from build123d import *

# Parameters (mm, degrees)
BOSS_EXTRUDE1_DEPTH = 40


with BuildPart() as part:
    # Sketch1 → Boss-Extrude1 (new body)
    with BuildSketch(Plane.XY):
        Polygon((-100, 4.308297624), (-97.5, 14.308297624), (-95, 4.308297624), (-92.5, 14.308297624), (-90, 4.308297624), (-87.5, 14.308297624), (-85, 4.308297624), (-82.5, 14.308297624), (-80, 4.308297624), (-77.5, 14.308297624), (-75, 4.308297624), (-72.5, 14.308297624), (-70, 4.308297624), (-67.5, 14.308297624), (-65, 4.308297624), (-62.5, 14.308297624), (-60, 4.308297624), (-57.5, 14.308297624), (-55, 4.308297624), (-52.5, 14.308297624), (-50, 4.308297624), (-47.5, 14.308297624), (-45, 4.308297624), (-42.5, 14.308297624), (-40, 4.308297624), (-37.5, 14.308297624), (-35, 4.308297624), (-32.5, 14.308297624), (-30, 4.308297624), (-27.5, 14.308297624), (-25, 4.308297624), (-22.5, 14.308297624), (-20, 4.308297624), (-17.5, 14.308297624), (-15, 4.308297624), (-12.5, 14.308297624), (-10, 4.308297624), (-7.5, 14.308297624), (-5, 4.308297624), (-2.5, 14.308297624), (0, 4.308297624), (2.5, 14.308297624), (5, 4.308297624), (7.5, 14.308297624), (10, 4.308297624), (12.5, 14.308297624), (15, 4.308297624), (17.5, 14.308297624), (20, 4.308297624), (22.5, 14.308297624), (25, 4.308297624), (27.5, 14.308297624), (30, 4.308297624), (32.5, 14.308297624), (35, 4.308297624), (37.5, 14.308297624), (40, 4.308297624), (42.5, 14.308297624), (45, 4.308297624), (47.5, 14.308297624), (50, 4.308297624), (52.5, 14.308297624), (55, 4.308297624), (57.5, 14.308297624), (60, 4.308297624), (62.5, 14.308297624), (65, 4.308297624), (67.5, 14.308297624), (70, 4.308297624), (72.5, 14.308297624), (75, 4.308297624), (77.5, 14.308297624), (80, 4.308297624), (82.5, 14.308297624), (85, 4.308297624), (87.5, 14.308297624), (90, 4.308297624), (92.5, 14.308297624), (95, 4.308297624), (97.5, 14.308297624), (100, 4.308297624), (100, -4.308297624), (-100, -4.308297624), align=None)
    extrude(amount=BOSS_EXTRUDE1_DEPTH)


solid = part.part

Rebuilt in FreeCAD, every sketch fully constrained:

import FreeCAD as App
import Part
import Sketcher
from FreeCAD import Vector


def add_polygon(sketch, points):
    """Adds a closed chain of lines whose ends are joined by coincident constraints."""
    first, n = sketch.GeometryCount, len(points)
    for a, b in zip(points, points[1:] + points[:1]):
        sketch.addGeometry(Part.LineSegment(App.Vector(*a, 0), App.Vector(*b, 0)), False)
    for i in range(n):
        sketch.addConstraint(Sketcher.Constraint("Coincident", first + i, 2, first + (i + 1) % n, 1))

doc = App.newDocument("Part")
body = doc.addObject("PartDesign::Body", "Body")

# Sketch on XY plane
sketch1 = body.newObject("Sketcher::SketchObject", "Sketch")
sketch1.AttachmentSupport = (doc.getObject("XY_Plane"), [""])
sketch1.MapMode = "FlatFace"
add_polygon(sketch1, [(-98, 14), (-100, 4), (-100, -4), (100, -4), (100, 4), (98, 14), (95, 4), (92, 14), (90, 4), (88, 14), (85, 4), (82, 14), (80, 4), (78, 14), (75, 4), (72, 14), (70, 4), (68, 14), (65, 4), (62, 14), (60, 4), (58, 14), (55, 4), (52, 14), (50, 4), (48, 14), (45, 4), (42, 14), (40, 4), (38, 14), (35, 4), (32, 14), (30, 4), (28, 14), (25, 4), (22, 14), (20, 4), (18, 14), (15, 4), (12, 14), (10, 4), (8, 14), (5, 4), (2, 14), (0, 4), (-2, 14), (-5, 4), (-8, 14), (-10, 4), (-12, 14), (-15, 4), (-18, 14), (-20, 4), (-22, 14), (-25, 4), (-28, 14), (-30, 4), (-32, 14), (-35, 4), (-38, 14), (-40, 4), (-42, 14), (-45, 4), (-48, 14), (-50, 4), (-52, 14), (-55, 4), (-58, 14), (-60, 4), (-62, 14), (-65, 4), (-68, 14), (-70, 4), (-72, 14), (-75, 4), (-78, 14), (-80, 4), (-82, 14), (-85, 4), (-88, 14), (-90, 4), (-92, 14), (-95, 4)])  # lines 0-82
sketch1.addConstraint([
    Sketcher.Constraint("Vertical", 1),
    Sketcher.Constraint("Horizontal", 2),
    Sketcher.Constraint("Vertical", 3),
    Sketcher.Constraint("Symmetric", 0, 2, 2, 2, -1, 1),
    Sketcher.Constraint("Symmetric", 42, 2, 44, 2, -2),
    Sketcher.Constraint("Symmetric", 41, 2, 45, 2, -2),
    Sketcher.Constraint("Symmetric", 40, 2, 46, 2, -2),
    Sketcher.Constraint("Symmetric", 39, 2, 47, 2, -2),
    Sketcher.Constraint("Symmetric", 38, 2, 48, 2, -2),
    Sketcher.Constraint("Symmetric", 37, 2, 49, 2, -2),
    Sketcher.Constraint("Symmetric", 36, 2, 50, 2, -2),
    Sketcher.Constraint("Symmetric", 35, 2, 51, 2, -2),
    Sketcher.Constraint("Symmetric", 34, 2, 52, 2, -2),
    Sketcher.Constraint("Symmetric", 33, 2, 53, 2, -2),
    Sketcher.Constraint("Symmetric", 32, 2, 54, 2, -2),
    Sketcher.Constraint("Symmetric", 31, 2, 55, 2, -2),
    Sketcher.Constraint("Symmetric", 30, 2, 56, 2, -2),
    Sketcher.Constraint("Symmetric", 29, 2, 57, 2, -2),
    Sketcher.Constraint("Symmetric", 28, 2, 58, 2, -2),
    Sketcher.Constraint("Symmetric", 27, 2, 59, 2, -2),
    Sketcher.Constraint("Symmetric", 26, 2, 60, 2, -2),
    Sketcher.Constraint("Symmetric", 25, 2, 61, 2, -2),
    Sketcher.Constraint("Symmetric", 24, 2, 62, 2, -2),
    Sketcher.Constraint("Symmetric", 23, 2, 63, 2, -2),
    Sketcher.Constraint("Symmetric", 22, 2, 64, 2, -2),
    Sketcher.Constraint("Symmetric", 21, 2, 65, 2, -2),
    Sketcher.Constraint("Symmetric", 20, 2, 66, 2, -2),
    Sketcher.Constraint("Symmetric", 19, 2, 67, 2, -2),
    Sketcher.Constraint("Symmetric", 18, 2, 68, 2, -2),
    Sketcher.Constraint("Symmetric", 17, 2, 69, 2, -2),
    Sketcher.Constraint("Symmetric", 16, 2, 70, 2, -2),
    Sketcher.Constraint("Symmetric", 15, 2, 71, 2, -2),
    Sketcher.Constraint("Symmetric", 14, 2, 72, 2, -2),
    Sketcher.Constraint("Symmetric", 13, 2, 73, 2, -2),
    Sketcher.Constraint("Symmetric", 12, 2, 74, 2, -2),
    Sketcher.Constraint("Symmetric", 11, 2, 75, 2, -2),
    Sketcher.Constraint("Symmetric", 10, 2, 76, 2, -2),
    Sketcher.Constraint("Symmetric", 9, 2, 77, 2, -2),
    Sketcher.Constraint("Symmetric", 8, 2, 78, 2, -2),
    Sketcher.Constraint("Symmetric", 7, 2, 79, 2, -2),
    Sketcher.Constraint("Symmetric", 6, 2, 80, 2, -2),
    Sketcher.Constraint("Symmetric", 5, 2, 81, 2, -2),
    Sketcher.Constraint("Symmetric", 4, 2, 82, 2, -2),
    Sketcher.Constraint("PointOnObject", 43, 2, -2),
    Sketcher.Constraint("Parallel", 0, 5),
    Sketcher.Constraint("Parallel", 4, 6),
    Sketcher.Constraint("Parallel", 5, 7),
    Sketcher.Constraint("Parallel", 6, 8),
    Sketcher.Constraint("Parallel", 7, 9),
    Sketcher.Constraint("Parallel", 8, 10),
    Sketcher.Constraint("Parallel", 9, 11),
    Sketcher.Constraint("Parallel", 10, 12),
    Sketcher.Constraint("Parallel", 11, 13),
    Sketcher.Constraint("Parallel", 12, 14),
    Sketcher.Constraint("Parallel", 13, 15),
    Sketcher.Constraint("Parallel", 14, 16),
    Sketcher.Constraint("Parallel", 15, 17),
    Sketcher.Constraint("Parallel", 16, 18),
    Sketcher.Constraint("Parallel", 17, 19),
    Sketcher.Constraint("Parallel", 18, 20),
    Sketcher.Constraint("Parallel", 19, 21),
    Sketcher.Constraint("Parallel", 20, 22),
    Sketcher.Constraint("Parallel", 21, 23),
    Sketcher.Constraint("Parallel", 22, 24),
    Sketcher.Constraint("Parallel", 23, 25),
    Sketcher.Constraint("Parallel", 24, 26),
    Sketcher.Constraint("Parallel", 25, 27),
    Sketcher.Constraint("Parallel", 26, 28),
    Sketcher.Constraint("Parallel", 27, 29),
    Sketcher.Constraint("Parallel", 28, 30),
    Sketcher.Constraint("Parallel", 29, 31),
    Sketcher.Constraint("Parallel", 30, 32),
    Sketcher.Constraint("Parallel", 31, 33),
    Sketcher.Constraint("Parallel", 32, 34),
    Sketcher.Constraint("Parallel", 33, 35),
    Sketcher.Constraint("Parallel", 34, 36),
    Sketcher.Constraint("Parallel", 35, 37),
    Sketcher.Constraint("Parallel", 36, 38),
    Sketcher.Constraint("Parallel", 37, 39),
    Sketcher.Constraint("Parallel", 38, 40),
    Sketcher.Constraint("Parallel", 39, 41),
    Sketcher.Constraint("Parallel", 40, 42),
    Sketcher.Constraint("Parallel", 41, 43),
    Sketcher.Constraint("Parallel", 42, 44),
    Sketcher.Constraint("Horizontal", 3, 2, 5, 2),
    Sketcher.Constraint("Horizontal", 4, 2, 6, 2),
    Sketcher.Constraint("Horizontal", 5, 2, 7, 2),
    Sketcher.Constraint("Horizontal", 6, 2, 8, 2),
    Sketcher.Constraint("Horizontal", 7, 2, 9, 2),
    Sketcher.Constraint("Horizontal", 8, 2, 10, 2),
    Sketcher.Constraint("Horizontal", 9, 2, 11, 2),
    Sketcher.Constraint("Horizontal", 10, 2, 12, 2),
    Sketcher.Constraint("Horizontal", 11, 2, 13, 2),
    Sketcher.Constraint("Horizontal", 12, 2, 14, 2),
    Sketcher.Constraint("Horizontal", 13, 2, 15, 2),
    Sketcher.Constraint("Horizontal", 14, 2, 16, 2),
    Sketcher.Constraint("Horizontal", 15, 2, 17, 2),
    Sketcher.Constraint("Horizontal", 16, 2, 18, 2),
    Sketcher.Constraint("Horizontal", 17, 2, 19, 2),
    Sketcher.Constraint("Horizontal", 18, 2, 20, 2),
    Sketcher.Constraint("Horizontal", 19, 2, 21, 2),
    Sketcher.Constraint("Horizontal", 20, 2, 22, 2),
    Sketcher.Constraint("Horizontal", 21, 2, 23, 2),
    Sketcher.Constraint("Horizontal", 22, 2, 24, 2),
    Sketcher.Constraint("Horizontal", 23, 2, 25, 2),
    Sketcher.Constraint("Horizontal", 24, 2, 26, 2),
    Sketcher.Constraint("Horizontal", 25, 2, 27, 2),
    Sketcher.Constraint("Horizontal", 26, 2, 28, 2),
    Sketcher.Constraint("Horizontal", 27, 2, 29, 2),
    Sketcher.Constraint("Horizontal", 28, 2, 30, 2),
    Sketcher.Constraint("Horizontal", 29, 2, 31, 2),
    Sketcher.Constraint("Horizontal", 30, 2, 32, 2),
    Sketcher.Constraint("Horizontal", 31, 2, 33, 2),
    Sketcher.Constraint("Horizontal", 32, 2, 34, 2),
    Sketcher.Constraint("Horizontal", 33, 2, 35, 2),
    Sketcher.Constraint("Horizontal", 34, 2, 36, 2),
    Sketcher.Constraint("Horizontal", 35, 2, 37, 2),
    Sketcher.Constraint("Horizontal", 36, 2, 38, 2),
    Sketcher.Constraint("Horizontal", 37, 2, 39, 2),
    Sketcher.Constraint("Horizontal", 38, 2, 40, 2),
    Sketcher.Constraint("Horizontal", 39, 2, 41, 2),
    Sketcher.Constraint("Horizontal", 40, 2, 42, 2),
    Sketcher.Constraint("Horizontal", 41, 2, 43, 2),
    Sketcher.Constraint("DistanceX", 2, 1, 2, 2, 200.0),
    Sketcher.Constraint("DistanceY", 1, 2, 1, 1, 8.616595),
    Sketcher.Constraint("Distance", 0, 10.307764),
])
pad1 = body.newObject("PartDesign::Pad", "Pad")
pad1.Profile = sketch1
pad1.Length = 40

doc.recompute()
